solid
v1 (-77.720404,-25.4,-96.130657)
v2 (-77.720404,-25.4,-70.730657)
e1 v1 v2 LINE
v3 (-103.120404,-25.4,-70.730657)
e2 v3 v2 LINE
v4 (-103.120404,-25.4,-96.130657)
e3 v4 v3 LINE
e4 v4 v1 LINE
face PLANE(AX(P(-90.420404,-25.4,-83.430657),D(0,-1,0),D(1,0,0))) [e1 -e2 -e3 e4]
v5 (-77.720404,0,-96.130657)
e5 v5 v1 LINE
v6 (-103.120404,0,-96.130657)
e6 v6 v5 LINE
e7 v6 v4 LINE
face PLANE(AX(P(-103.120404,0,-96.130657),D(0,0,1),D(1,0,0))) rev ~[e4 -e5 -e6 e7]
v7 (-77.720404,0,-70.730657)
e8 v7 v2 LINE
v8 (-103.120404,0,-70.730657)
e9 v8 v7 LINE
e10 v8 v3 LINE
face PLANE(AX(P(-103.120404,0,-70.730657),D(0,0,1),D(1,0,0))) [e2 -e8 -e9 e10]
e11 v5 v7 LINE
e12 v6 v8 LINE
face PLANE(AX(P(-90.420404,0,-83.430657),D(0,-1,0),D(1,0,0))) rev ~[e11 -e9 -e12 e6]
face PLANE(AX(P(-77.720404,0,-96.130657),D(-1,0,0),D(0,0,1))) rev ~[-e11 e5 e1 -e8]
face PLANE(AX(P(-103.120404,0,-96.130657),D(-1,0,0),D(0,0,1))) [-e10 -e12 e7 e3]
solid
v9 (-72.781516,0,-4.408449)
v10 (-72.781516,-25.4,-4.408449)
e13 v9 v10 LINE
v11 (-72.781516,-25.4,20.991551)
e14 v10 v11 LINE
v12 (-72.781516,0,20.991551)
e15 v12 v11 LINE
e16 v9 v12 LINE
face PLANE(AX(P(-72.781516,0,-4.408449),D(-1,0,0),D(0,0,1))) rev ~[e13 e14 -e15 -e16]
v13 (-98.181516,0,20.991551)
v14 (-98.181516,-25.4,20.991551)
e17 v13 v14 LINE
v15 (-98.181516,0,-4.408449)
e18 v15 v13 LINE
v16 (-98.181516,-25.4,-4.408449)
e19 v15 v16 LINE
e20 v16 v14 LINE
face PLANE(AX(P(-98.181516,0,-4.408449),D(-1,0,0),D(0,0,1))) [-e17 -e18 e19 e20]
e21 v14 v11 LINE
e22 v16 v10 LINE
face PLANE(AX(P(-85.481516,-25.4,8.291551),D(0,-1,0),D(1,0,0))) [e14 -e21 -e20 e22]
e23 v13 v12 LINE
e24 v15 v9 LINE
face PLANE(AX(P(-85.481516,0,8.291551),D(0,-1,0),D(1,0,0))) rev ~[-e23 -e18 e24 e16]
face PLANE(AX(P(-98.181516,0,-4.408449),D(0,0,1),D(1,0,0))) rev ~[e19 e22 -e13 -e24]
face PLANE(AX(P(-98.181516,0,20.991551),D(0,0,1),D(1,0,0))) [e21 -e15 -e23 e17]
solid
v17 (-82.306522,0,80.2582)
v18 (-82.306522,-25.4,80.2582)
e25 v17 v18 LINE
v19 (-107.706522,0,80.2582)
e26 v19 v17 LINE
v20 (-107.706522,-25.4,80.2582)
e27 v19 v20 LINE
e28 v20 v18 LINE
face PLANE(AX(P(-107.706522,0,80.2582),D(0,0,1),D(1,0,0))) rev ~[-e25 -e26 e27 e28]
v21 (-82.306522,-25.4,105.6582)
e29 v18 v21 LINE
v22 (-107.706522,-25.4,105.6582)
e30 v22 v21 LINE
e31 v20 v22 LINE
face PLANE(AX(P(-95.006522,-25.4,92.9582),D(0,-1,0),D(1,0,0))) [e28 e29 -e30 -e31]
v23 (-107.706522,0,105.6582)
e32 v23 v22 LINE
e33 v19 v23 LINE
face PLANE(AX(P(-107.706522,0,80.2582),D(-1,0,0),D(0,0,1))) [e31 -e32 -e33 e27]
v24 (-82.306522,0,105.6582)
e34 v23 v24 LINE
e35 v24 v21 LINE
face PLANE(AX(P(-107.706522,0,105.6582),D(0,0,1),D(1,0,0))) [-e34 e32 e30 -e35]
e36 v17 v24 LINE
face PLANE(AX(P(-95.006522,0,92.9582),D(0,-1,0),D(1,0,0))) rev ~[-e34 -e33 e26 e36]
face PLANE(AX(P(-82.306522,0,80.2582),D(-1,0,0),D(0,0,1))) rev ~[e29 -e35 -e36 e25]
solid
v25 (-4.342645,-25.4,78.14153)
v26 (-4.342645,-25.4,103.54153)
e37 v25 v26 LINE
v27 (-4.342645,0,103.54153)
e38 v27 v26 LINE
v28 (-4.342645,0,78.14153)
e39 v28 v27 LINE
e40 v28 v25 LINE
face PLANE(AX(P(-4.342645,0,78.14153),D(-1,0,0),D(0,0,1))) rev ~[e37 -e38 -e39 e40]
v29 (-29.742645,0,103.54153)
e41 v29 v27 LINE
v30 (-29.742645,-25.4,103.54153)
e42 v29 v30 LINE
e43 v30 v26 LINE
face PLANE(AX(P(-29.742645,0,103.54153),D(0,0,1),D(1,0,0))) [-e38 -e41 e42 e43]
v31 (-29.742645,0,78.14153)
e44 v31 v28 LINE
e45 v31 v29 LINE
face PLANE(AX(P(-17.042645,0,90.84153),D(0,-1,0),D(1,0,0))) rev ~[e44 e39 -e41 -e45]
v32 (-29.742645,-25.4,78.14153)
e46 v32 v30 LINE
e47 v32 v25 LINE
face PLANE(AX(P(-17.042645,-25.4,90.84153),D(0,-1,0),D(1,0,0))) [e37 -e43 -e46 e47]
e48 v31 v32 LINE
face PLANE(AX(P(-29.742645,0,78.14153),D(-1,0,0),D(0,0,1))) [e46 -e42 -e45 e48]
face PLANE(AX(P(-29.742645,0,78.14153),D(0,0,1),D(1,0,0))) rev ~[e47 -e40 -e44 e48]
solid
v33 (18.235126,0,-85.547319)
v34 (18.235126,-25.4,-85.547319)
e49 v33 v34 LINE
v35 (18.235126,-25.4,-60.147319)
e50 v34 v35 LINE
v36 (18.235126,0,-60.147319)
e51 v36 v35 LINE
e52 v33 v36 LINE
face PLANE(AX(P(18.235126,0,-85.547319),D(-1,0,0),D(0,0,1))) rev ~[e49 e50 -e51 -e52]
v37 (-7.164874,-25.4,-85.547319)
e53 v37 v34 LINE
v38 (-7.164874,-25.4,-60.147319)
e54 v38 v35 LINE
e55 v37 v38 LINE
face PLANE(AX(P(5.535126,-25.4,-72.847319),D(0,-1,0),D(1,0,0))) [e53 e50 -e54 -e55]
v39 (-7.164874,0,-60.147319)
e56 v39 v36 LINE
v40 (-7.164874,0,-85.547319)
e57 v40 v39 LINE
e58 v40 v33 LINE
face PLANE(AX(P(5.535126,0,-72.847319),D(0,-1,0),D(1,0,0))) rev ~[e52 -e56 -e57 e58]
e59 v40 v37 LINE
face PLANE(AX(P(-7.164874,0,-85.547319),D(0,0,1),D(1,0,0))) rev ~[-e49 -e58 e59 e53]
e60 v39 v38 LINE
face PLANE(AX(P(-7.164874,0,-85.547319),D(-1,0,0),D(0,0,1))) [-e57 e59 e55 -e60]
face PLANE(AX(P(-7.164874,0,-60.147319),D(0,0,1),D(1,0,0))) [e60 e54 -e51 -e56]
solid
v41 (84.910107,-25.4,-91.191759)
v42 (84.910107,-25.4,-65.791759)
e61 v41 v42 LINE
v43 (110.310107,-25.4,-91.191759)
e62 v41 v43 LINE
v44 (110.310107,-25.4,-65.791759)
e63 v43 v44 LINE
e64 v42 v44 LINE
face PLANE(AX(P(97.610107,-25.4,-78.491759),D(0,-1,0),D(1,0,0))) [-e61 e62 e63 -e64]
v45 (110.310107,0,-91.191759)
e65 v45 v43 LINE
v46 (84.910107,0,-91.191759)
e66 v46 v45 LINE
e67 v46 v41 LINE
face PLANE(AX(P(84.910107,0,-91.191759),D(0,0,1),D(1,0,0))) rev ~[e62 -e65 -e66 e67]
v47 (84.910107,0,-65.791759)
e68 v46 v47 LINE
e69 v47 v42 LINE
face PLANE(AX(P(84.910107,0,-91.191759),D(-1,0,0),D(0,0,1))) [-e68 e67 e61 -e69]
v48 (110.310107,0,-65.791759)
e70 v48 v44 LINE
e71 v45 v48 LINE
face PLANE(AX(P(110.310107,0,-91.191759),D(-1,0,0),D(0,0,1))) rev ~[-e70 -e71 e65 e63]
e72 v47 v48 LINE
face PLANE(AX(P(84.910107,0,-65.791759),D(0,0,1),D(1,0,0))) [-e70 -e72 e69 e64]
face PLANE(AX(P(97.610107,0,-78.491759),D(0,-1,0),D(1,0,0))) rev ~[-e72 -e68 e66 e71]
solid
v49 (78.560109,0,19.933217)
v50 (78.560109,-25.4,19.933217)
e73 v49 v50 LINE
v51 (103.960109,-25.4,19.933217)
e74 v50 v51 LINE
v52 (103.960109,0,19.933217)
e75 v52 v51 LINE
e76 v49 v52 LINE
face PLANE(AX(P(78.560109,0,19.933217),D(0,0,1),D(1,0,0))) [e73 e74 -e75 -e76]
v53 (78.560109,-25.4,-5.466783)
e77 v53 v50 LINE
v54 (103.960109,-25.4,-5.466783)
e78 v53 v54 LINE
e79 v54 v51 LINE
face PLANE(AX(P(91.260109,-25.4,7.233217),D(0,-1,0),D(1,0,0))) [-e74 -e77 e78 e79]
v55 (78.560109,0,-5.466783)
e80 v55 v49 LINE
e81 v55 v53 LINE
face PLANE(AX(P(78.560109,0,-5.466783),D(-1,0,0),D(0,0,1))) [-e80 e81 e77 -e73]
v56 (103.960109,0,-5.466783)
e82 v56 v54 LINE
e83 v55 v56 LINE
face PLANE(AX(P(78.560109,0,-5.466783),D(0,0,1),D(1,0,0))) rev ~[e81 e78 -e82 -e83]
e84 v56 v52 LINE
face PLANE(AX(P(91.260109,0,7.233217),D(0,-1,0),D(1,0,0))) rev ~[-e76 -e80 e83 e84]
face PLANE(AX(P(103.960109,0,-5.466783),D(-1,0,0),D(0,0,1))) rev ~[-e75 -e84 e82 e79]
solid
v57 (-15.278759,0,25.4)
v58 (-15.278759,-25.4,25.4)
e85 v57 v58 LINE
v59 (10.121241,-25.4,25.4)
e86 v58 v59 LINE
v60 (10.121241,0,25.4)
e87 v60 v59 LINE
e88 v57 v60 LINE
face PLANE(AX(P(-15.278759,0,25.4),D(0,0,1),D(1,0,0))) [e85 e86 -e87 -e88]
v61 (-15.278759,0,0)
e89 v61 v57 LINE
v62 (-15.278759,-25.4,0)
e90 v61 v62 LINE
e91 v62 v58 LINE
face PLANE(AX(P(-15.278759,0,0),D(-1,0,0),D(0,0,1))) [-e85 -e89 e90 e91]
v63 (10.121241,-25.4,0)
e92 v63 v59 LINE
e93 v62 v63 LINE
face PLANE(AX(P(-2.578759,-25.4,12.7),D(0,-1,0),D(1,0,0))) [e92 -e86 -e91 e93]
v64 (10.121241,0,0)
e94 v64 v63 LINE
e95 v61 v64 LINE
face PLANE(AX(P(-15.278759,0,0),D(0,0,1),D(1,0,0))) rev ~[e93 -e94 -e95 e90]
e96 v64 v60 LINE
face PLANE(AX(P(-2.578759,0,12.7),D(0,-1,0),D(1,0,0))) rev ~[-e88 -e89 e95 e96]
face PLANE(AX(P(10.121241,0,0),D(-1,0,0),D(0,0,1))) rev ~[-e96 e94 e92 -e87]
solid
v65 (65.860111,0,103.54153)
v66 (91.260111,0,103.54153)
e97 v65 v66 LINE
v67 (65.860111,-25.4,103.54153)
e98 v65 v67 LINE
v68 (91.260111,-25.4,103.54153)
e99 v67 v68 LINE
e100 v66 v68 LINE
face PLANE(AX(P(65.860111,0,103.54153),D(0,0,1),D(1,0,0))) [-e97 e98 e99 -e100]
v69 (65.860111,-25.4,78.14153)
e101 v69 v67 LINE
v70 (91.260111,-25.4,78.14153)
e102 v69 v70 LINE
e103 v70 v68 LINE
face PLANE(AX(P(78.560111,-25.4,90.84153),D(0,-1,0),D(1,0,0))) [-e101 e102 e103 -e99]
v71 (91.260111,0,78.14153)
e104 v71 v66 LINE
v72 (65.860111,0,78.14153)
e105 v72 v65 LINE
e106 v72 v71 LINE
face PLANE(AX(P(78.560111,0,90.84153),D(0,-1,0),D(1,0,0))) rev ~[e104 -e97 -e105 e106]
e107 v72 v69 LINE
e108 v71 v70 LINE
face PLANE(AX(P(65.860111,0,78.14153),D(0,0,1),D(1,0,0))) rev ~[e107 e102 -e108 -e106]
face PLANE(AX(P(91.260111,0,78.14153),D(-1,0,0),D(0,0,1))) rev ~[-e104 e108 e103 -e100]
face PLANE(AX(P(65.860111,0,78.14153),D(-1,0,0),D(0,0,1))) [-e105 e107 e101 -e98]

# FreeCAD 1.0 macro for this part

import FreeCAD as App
import Part
import Sketcher
Q = App.Units.Quantity

doc = App.newDocument("Part")
body = doc.addObject("PartDesign::Body", "Body")
body.AllowCompound = True

sketch1 = doc.addObject("Sketcher::SketchObject", "Sketch")
body.addObject(sketch1)
sketch1.AttachmentSupport = (doc.XZ_Plane, [""])
sketch1.MapMode = "FlatFace"
sketch1.addGeometry([
    Part.LineSegment(App.Vector(-107.706522, 105.6582, 0), App.Vector(-107.706522, 80.2582, 0)),
    Part.LineSegment(App.Vector(-107.706522, 80.2582, 0), App.Vector(-82.306522, 80.2582, 0)),
    Part.LineSegment(App.Vector(-82.306522, 80.2582, 0), App.Vector(-82.306522, 105.6582, 0)),
    Part.LineSegment(App.Vector(-82.306522, 105.6582, 0), App.Vector(-107.706522, 105.6582, 0)),
    Part.LineSegment(App.Vector(-29.742645, 103.54153, 0), App.Vector(-29.742645, 78.14153, 0)),
    Part.LineSegment(App.Vector(-29.742645, 78.14153, 0), App.Vector(-4.342645, 78.14153, 0)),
    Part.LineSegment(App.Vector(-4.342645, 78.14153, 0), App.Vector(-4.342645, 103.54153, 0)),
    Part.LineSegment(App.Vector(-4.342645, 103.54153, 0), App.Vector(-29.742645, 103.54153, 0)),
    Part.LineSegment(App.Vector(65.860111, 103.54153, 0), App.Vector(65.860111, 78.14153, 0)),
    Part.LineSegment(App.Vector(65.860111, 78.14153, 0), App.Vector(91.260111, 78.14153, 0)),
    Part.LineSegment(App.Vector(91.260111, 78.14153, 0), App.Vector(91.260111, 103.54153, 0)),
    Part.LineSegment(App.Vector(91.260111, 103.54153, 0), App.Vector(65.860111, 103.54153, 0)),
    Part.LineSegment(App.Vector(-98.181516, 20.991551, 0), App.Vector(-98.181516, -4.408449, 0)),
    Part.LineSegment(App.Vector(-98.181516, -4.408449, 0), App.Vector(-72.781516, -4.408449, 0)),
    Part.LineSegment(App.Vector(-72.781516, -4.408449, 0), App.Vector(-72.781516, 20.991551, 0)),
    Part.LineSegment(App.Vector(-72.781516, 20.991551, 0), App.Vector(-98.181516, 20.991551, 0)),
    Part.LineSegment(App.Vector(-15.278759, 25.4, 0), App.Vector(-15.278759, 0, 0)),
    Part.LineSegment(App.Vector(-15.278759, 0, 0), App.Vector(10.121241, 0, 0)),
    Part.LineSegment(App.Vector(10.121241, 0, 0), App.Vector(10.121241, 25.4, 0)),
    Part.LineSegment(App.Vector(10.121241, 25.4, 0), App.Vector(-15.278759, 25.4, 0)),
    Part.LineSegment(App.Vector(78.560109, 19.933217, 0), App.Vector(78.560109, -5.466783, 0)),
    Part.LineSegment(App.Vector(78.560109, -5.466783, 0), App.Vector(103.960109, -5.466783, 0)),
    Part.LineSegment(App.Vector(103.960109, -5.466783, 0), App.Vector(103.960109, 19.933217, 0)),
    Part.LineSegment(App.Vector(103.960109, 19.933217, 0), App.Vector(78.560109, 19.933217, 0)),
    Part.LineSegment(App.Vector(-103.120404, -70.730657, 0), App.Vector(-103.120404, -96.130657, 0)),
    Part.LineSegment(App.Vector(-103.120404, -96.130657, 0), App.Vector(-77.720404, -96.130657, 0)),
    Part.LineSegment(App.Vector(-77.720404, -96.130657, 0), App.Vector(-77.720404, -70.730657, 0)),
    Part.LineSegment(App.Vector(-77.720404, -70.730657, 0), App.Vector(-103.120404, -70.730657, 0)),
    Part.LineSegment(App.Vector(-7.164874, -60.147319, 0), App.Vector(-7.164874, -85.547319, 0)),
    Part.LineSegment(App.Vector(-7.164874, -85.547319, 0), App.Vector(18.235126, -85.547319, 0)),
    Part.LineSegment(App.Vector(18.235126, -85.547319, 0), App.Vector(18.235126, -60.147319, 0)),
    Part.LineSegment(App.Vector(18.235126, -60.147319, 0), App.Vector(-7.164874, -60.147319, 0)),
    Part.LineSegment(App.Vector(84.910107, -65.791759, 0), App.Vector(84.910107, -91.191759, 0)),
    Part.LineSegment(App.Vector(84.910107, -91.191759, 0), App.Vector(110.310107, -91.191759, 0)),
    Part.LineSegment(App.Vector(110.310107, -91.191759, 0), App.Vector(110.310107, -65.791759, 0)),
    Part.LineSegment(App.Vector(110.310107, -65.791759, 0), App.Vector(84.910107, -65.791759, 0)),
], False)
sketch1.addConstraint([
    Sketcher.Constraint("Coincident", 0, 2, 1, 1),
    Sketcher.Constraint("Coincident", 1, 2, 2, 1),
    Sketcher.Constraint("Coincident", 2, 2, 3, 1),
    Sketcher.Constraint("Coincident", 3, 2, 0, 1),
    Sketcher.Constraint("Coincident", 4, 2, 5, 1),
    Sketcher.Constraint("Coincident", 5, 2, 6, 1),
    Sketcher.Constraint("Coincident", 6, 2, 7, 1),
    Sketcher.Constraint("Coincident", 7, 2, 4, 1),
    Sketcher.Constraint("Coincident", 8, 2, 9, 1),
    Sketcher.Constraint("Coincident", 9, 2, 10, 1),
    Sketcher.Constraint("Coincident", 10, 2, 11, 1),
    Sketcher.Constraint("Coincident", 11, 2, 8, 1),
    Sketcher.Constraint("Coincident", 12, 2, 13, 1),
    Sketcher.Constraint("Coincident", 13, 2, 14, 1),
    Sketcher.Constraint("Coincident", 14, 2, 15, 1),
    Sketcher.Constraint("Coincident", 15, 2, 12, 1),
    Sketcher.Constraint("Coincident", 16, 2, 17, 1),
    Sketcher.Constraint("Coincident", 17, 2, 18, 1),
    Sketcher.Constraint("Coincident", 18, 2, 19, 1),
    Sketcher.Constraint("Coincident", 19, 2, 16, 1),
    Sketcher.Constraint("Coincident", 20, 2, 21, 1),
    Sketcher.Constraint("Coincident", 21, 2, 22, 1),
    Sketcher.Constraint("Coincident", 22, 2, 23, 1),
    Sketcher.Constraint("Coincident", 23, 2, 20, 1),
    Sketcher.Constraint("Coincident", 24, 2, 25, 1),
    Sketcher.Constraint("Coincident", 25, 2, 26, 1),
    Sketcher.Constraint("Coincident", 26, 2, 27, 1),
    Sketcher.Constraint("Coincident", 27, 2, 24, 1),
    Sketcher.Constraint("Coincident", 28, 2, 29, 1),
    Sketcher.Constraint("Coincident", 29, 2, 30, 1),
    Sketcher.Constraint("Coincident", 30, 2, 31, 1),
    Sketcher.Constraint("Coincident", 31, 2, 28, 1),
    Sketcher.Constraint("Coincident", 32, 2, 33, 1),
    Sketcher.Constraint("Coincident", 33, 2, 34, 1),
    Sketcher.Constraint("Coincident", 34, 2, 35, 1),
    Sketcher.Constraint("Coincident", 35, 2, 32, 1),
    Sketcher.Constraint("Vertical", 0),
    Sketcher.Constraint("Horizontal", 1),
    Sketcher.Constraint("Vertical", 2),
    Sketcher.Constraint("Horizontal", 3),
    Sketcher.Constraint("Vertical", 4),
    Sketcher.Constraint("Horizontal", 5),
    Sketcher.Constraint("Vertical", 6),
    Sketcher.Constraint("Horizontal", 7),
    Sketcher.Constraint("Vertical", 8),
    Sketcher.Constraint("Horizontal", 9),
    Sketcher.Constraint("Vertical", 10),
    Sketcher.Constraint("Horizontal", 11),
    Sketcher.Constraint("Vertical", 12),
    Sketcher.Constraint("Horizontal", 13),
    Sketcher.Constraint("Vertical", 14),
    Sketcher.Constraint("Horizontal", 15),
    Sketcher.Constraint("Vertical", 16),
    Sketcher.Constraint("Horizontal", 17),
    Sketcher.Constraint("Vertical", 18),
    Sketcher.Constraint("Horizontal", 19),
    Sketcher.Constraint("Vertical", 20),
    Sketcher.Constraint("Horizontal", 21),
    Sketcher.Constraint("Vertical", 22),
    Sketcher.Constraint("Horizontal", 23),
    Sketcher.Constraint("Vertical", 24),
    Sketcher.Constraint("Horizontal", 25),
    Sketcher.Constraint("Vertical", 26),
    Sketcher.Constraint("Horizontal", 27),
    Sketcher.Constraint("Vertical", 28),
    Sketcher.Constraint("Horizontal", 29),
    Sketcher.Constraint("Vertical", 30),
    Sketcher.Constraint("Horizontal", 31),
    Sketcher.Constraint("Vertical", 32),
    Sketcher.Constraint("Horizontal", 33),
    Sketcher.Constraint("Vertical", 34),
    Sketcher.Constraint("Horizontal", 35),
    Sketcher.Constraint("PointOnObject", 16, 2, -1),
    Sketcher.Constraint("Horizontal", 5, 2, 8, 2),
    Sketcher.Constraint("Horizontal", 7, 2, 10, 2),
    Sketcher.Constraint("Equal", 3, 5),
    Sketcher.Constraint("Equal", 7, 9),
    Sketcher.Constraint("Equal", 11, 13),
    Sketcher.Constraint("Equal", 15, 17),
    Sketcher.Constraint("Equal", 19, 21),
    Sketcher.Constraint("Equal", 23, 25),
    Sketcher.Constraint("Equal", 27, 29),
    Sketcher.Constraint("Equal", 31, 33),
    Sketcher.Constraint("Equal", 35, 0),
    Sketcher.Constraint("Equal", 2, 4),
    Sketcher.Constraint("Equal", 10, 12),
    Sketcher.Constraint("Equal", 14, 16),
    Sketcher.Constraint("Equal", 18, 20),
    Sketcher.Constraint("Equal", 22, 24),
    Sketcher.Constraint("Equal", 26, 28),
    Sketcher.Constraint("Equal", 30, 32),
    Sketcher.Constraint("DistanceX", 1, 1, 1, 2, Q("1 in")),
    Sketcher.Constraint("DistanceX", 8, 2, 20, 2, Q("0.4999999 in")),
    Sketcher.Constraint("DistanceX", 20, 2, 32, 2, Q("0.2499999 in")),
    Sketcher.Constraint("DistanceY", -1, 1, 0, 2, 80.2582),
    Sketcher.Constraint("DistanceX", 1, 2, -1, 1, 82.306522),
    Sketcher.Constraint("DistanceY", -1, 1, 4, 2, 78.14153),
    Sketcher.Constraint("DistanceX", -1, 1, 8, 2, 65.860111),
    Sketcher.Constraint("DistanceY", 12, 2, -1, 1, 4.408449),
    Sketcher.Constraint("DistanceX", 16, 2, -1, 1, 15.278759),
    Sketcher.Constraint("DistanceY", 28, 2, -1, 1, 85.547319),
    Sketcher.Constraint("DistanceY", 32, 2, -1, 1, 91.191759),
    Sketcher.Constraint("DistanceX", 12, 2, 4, 2, 68.438871),
    Sketcher.Constraint("DistanceY", 24, 2, 15, 2, 117.122208),
    Sketcher.Constraint("DistanceX", 25, 2, 13, 2, 4.938888),
    Sketcher.Constraint("DistanceX", 25, 2, 28, 2, 70.55553),
    Sketcher.Constraint("DistanceX", 29, 2, 32, 2, 66.674981),
    Sketcher.Constraint("DistanceY", 20, 2, -1, 1, 5.466783),
])
pad1 = doc.addObject("PartDesign::Pad", "Pad")
body.addObject(pad1)
pad1.Profile = sketch1
pad1.Length = Q("1 in")

doc.recompute()
